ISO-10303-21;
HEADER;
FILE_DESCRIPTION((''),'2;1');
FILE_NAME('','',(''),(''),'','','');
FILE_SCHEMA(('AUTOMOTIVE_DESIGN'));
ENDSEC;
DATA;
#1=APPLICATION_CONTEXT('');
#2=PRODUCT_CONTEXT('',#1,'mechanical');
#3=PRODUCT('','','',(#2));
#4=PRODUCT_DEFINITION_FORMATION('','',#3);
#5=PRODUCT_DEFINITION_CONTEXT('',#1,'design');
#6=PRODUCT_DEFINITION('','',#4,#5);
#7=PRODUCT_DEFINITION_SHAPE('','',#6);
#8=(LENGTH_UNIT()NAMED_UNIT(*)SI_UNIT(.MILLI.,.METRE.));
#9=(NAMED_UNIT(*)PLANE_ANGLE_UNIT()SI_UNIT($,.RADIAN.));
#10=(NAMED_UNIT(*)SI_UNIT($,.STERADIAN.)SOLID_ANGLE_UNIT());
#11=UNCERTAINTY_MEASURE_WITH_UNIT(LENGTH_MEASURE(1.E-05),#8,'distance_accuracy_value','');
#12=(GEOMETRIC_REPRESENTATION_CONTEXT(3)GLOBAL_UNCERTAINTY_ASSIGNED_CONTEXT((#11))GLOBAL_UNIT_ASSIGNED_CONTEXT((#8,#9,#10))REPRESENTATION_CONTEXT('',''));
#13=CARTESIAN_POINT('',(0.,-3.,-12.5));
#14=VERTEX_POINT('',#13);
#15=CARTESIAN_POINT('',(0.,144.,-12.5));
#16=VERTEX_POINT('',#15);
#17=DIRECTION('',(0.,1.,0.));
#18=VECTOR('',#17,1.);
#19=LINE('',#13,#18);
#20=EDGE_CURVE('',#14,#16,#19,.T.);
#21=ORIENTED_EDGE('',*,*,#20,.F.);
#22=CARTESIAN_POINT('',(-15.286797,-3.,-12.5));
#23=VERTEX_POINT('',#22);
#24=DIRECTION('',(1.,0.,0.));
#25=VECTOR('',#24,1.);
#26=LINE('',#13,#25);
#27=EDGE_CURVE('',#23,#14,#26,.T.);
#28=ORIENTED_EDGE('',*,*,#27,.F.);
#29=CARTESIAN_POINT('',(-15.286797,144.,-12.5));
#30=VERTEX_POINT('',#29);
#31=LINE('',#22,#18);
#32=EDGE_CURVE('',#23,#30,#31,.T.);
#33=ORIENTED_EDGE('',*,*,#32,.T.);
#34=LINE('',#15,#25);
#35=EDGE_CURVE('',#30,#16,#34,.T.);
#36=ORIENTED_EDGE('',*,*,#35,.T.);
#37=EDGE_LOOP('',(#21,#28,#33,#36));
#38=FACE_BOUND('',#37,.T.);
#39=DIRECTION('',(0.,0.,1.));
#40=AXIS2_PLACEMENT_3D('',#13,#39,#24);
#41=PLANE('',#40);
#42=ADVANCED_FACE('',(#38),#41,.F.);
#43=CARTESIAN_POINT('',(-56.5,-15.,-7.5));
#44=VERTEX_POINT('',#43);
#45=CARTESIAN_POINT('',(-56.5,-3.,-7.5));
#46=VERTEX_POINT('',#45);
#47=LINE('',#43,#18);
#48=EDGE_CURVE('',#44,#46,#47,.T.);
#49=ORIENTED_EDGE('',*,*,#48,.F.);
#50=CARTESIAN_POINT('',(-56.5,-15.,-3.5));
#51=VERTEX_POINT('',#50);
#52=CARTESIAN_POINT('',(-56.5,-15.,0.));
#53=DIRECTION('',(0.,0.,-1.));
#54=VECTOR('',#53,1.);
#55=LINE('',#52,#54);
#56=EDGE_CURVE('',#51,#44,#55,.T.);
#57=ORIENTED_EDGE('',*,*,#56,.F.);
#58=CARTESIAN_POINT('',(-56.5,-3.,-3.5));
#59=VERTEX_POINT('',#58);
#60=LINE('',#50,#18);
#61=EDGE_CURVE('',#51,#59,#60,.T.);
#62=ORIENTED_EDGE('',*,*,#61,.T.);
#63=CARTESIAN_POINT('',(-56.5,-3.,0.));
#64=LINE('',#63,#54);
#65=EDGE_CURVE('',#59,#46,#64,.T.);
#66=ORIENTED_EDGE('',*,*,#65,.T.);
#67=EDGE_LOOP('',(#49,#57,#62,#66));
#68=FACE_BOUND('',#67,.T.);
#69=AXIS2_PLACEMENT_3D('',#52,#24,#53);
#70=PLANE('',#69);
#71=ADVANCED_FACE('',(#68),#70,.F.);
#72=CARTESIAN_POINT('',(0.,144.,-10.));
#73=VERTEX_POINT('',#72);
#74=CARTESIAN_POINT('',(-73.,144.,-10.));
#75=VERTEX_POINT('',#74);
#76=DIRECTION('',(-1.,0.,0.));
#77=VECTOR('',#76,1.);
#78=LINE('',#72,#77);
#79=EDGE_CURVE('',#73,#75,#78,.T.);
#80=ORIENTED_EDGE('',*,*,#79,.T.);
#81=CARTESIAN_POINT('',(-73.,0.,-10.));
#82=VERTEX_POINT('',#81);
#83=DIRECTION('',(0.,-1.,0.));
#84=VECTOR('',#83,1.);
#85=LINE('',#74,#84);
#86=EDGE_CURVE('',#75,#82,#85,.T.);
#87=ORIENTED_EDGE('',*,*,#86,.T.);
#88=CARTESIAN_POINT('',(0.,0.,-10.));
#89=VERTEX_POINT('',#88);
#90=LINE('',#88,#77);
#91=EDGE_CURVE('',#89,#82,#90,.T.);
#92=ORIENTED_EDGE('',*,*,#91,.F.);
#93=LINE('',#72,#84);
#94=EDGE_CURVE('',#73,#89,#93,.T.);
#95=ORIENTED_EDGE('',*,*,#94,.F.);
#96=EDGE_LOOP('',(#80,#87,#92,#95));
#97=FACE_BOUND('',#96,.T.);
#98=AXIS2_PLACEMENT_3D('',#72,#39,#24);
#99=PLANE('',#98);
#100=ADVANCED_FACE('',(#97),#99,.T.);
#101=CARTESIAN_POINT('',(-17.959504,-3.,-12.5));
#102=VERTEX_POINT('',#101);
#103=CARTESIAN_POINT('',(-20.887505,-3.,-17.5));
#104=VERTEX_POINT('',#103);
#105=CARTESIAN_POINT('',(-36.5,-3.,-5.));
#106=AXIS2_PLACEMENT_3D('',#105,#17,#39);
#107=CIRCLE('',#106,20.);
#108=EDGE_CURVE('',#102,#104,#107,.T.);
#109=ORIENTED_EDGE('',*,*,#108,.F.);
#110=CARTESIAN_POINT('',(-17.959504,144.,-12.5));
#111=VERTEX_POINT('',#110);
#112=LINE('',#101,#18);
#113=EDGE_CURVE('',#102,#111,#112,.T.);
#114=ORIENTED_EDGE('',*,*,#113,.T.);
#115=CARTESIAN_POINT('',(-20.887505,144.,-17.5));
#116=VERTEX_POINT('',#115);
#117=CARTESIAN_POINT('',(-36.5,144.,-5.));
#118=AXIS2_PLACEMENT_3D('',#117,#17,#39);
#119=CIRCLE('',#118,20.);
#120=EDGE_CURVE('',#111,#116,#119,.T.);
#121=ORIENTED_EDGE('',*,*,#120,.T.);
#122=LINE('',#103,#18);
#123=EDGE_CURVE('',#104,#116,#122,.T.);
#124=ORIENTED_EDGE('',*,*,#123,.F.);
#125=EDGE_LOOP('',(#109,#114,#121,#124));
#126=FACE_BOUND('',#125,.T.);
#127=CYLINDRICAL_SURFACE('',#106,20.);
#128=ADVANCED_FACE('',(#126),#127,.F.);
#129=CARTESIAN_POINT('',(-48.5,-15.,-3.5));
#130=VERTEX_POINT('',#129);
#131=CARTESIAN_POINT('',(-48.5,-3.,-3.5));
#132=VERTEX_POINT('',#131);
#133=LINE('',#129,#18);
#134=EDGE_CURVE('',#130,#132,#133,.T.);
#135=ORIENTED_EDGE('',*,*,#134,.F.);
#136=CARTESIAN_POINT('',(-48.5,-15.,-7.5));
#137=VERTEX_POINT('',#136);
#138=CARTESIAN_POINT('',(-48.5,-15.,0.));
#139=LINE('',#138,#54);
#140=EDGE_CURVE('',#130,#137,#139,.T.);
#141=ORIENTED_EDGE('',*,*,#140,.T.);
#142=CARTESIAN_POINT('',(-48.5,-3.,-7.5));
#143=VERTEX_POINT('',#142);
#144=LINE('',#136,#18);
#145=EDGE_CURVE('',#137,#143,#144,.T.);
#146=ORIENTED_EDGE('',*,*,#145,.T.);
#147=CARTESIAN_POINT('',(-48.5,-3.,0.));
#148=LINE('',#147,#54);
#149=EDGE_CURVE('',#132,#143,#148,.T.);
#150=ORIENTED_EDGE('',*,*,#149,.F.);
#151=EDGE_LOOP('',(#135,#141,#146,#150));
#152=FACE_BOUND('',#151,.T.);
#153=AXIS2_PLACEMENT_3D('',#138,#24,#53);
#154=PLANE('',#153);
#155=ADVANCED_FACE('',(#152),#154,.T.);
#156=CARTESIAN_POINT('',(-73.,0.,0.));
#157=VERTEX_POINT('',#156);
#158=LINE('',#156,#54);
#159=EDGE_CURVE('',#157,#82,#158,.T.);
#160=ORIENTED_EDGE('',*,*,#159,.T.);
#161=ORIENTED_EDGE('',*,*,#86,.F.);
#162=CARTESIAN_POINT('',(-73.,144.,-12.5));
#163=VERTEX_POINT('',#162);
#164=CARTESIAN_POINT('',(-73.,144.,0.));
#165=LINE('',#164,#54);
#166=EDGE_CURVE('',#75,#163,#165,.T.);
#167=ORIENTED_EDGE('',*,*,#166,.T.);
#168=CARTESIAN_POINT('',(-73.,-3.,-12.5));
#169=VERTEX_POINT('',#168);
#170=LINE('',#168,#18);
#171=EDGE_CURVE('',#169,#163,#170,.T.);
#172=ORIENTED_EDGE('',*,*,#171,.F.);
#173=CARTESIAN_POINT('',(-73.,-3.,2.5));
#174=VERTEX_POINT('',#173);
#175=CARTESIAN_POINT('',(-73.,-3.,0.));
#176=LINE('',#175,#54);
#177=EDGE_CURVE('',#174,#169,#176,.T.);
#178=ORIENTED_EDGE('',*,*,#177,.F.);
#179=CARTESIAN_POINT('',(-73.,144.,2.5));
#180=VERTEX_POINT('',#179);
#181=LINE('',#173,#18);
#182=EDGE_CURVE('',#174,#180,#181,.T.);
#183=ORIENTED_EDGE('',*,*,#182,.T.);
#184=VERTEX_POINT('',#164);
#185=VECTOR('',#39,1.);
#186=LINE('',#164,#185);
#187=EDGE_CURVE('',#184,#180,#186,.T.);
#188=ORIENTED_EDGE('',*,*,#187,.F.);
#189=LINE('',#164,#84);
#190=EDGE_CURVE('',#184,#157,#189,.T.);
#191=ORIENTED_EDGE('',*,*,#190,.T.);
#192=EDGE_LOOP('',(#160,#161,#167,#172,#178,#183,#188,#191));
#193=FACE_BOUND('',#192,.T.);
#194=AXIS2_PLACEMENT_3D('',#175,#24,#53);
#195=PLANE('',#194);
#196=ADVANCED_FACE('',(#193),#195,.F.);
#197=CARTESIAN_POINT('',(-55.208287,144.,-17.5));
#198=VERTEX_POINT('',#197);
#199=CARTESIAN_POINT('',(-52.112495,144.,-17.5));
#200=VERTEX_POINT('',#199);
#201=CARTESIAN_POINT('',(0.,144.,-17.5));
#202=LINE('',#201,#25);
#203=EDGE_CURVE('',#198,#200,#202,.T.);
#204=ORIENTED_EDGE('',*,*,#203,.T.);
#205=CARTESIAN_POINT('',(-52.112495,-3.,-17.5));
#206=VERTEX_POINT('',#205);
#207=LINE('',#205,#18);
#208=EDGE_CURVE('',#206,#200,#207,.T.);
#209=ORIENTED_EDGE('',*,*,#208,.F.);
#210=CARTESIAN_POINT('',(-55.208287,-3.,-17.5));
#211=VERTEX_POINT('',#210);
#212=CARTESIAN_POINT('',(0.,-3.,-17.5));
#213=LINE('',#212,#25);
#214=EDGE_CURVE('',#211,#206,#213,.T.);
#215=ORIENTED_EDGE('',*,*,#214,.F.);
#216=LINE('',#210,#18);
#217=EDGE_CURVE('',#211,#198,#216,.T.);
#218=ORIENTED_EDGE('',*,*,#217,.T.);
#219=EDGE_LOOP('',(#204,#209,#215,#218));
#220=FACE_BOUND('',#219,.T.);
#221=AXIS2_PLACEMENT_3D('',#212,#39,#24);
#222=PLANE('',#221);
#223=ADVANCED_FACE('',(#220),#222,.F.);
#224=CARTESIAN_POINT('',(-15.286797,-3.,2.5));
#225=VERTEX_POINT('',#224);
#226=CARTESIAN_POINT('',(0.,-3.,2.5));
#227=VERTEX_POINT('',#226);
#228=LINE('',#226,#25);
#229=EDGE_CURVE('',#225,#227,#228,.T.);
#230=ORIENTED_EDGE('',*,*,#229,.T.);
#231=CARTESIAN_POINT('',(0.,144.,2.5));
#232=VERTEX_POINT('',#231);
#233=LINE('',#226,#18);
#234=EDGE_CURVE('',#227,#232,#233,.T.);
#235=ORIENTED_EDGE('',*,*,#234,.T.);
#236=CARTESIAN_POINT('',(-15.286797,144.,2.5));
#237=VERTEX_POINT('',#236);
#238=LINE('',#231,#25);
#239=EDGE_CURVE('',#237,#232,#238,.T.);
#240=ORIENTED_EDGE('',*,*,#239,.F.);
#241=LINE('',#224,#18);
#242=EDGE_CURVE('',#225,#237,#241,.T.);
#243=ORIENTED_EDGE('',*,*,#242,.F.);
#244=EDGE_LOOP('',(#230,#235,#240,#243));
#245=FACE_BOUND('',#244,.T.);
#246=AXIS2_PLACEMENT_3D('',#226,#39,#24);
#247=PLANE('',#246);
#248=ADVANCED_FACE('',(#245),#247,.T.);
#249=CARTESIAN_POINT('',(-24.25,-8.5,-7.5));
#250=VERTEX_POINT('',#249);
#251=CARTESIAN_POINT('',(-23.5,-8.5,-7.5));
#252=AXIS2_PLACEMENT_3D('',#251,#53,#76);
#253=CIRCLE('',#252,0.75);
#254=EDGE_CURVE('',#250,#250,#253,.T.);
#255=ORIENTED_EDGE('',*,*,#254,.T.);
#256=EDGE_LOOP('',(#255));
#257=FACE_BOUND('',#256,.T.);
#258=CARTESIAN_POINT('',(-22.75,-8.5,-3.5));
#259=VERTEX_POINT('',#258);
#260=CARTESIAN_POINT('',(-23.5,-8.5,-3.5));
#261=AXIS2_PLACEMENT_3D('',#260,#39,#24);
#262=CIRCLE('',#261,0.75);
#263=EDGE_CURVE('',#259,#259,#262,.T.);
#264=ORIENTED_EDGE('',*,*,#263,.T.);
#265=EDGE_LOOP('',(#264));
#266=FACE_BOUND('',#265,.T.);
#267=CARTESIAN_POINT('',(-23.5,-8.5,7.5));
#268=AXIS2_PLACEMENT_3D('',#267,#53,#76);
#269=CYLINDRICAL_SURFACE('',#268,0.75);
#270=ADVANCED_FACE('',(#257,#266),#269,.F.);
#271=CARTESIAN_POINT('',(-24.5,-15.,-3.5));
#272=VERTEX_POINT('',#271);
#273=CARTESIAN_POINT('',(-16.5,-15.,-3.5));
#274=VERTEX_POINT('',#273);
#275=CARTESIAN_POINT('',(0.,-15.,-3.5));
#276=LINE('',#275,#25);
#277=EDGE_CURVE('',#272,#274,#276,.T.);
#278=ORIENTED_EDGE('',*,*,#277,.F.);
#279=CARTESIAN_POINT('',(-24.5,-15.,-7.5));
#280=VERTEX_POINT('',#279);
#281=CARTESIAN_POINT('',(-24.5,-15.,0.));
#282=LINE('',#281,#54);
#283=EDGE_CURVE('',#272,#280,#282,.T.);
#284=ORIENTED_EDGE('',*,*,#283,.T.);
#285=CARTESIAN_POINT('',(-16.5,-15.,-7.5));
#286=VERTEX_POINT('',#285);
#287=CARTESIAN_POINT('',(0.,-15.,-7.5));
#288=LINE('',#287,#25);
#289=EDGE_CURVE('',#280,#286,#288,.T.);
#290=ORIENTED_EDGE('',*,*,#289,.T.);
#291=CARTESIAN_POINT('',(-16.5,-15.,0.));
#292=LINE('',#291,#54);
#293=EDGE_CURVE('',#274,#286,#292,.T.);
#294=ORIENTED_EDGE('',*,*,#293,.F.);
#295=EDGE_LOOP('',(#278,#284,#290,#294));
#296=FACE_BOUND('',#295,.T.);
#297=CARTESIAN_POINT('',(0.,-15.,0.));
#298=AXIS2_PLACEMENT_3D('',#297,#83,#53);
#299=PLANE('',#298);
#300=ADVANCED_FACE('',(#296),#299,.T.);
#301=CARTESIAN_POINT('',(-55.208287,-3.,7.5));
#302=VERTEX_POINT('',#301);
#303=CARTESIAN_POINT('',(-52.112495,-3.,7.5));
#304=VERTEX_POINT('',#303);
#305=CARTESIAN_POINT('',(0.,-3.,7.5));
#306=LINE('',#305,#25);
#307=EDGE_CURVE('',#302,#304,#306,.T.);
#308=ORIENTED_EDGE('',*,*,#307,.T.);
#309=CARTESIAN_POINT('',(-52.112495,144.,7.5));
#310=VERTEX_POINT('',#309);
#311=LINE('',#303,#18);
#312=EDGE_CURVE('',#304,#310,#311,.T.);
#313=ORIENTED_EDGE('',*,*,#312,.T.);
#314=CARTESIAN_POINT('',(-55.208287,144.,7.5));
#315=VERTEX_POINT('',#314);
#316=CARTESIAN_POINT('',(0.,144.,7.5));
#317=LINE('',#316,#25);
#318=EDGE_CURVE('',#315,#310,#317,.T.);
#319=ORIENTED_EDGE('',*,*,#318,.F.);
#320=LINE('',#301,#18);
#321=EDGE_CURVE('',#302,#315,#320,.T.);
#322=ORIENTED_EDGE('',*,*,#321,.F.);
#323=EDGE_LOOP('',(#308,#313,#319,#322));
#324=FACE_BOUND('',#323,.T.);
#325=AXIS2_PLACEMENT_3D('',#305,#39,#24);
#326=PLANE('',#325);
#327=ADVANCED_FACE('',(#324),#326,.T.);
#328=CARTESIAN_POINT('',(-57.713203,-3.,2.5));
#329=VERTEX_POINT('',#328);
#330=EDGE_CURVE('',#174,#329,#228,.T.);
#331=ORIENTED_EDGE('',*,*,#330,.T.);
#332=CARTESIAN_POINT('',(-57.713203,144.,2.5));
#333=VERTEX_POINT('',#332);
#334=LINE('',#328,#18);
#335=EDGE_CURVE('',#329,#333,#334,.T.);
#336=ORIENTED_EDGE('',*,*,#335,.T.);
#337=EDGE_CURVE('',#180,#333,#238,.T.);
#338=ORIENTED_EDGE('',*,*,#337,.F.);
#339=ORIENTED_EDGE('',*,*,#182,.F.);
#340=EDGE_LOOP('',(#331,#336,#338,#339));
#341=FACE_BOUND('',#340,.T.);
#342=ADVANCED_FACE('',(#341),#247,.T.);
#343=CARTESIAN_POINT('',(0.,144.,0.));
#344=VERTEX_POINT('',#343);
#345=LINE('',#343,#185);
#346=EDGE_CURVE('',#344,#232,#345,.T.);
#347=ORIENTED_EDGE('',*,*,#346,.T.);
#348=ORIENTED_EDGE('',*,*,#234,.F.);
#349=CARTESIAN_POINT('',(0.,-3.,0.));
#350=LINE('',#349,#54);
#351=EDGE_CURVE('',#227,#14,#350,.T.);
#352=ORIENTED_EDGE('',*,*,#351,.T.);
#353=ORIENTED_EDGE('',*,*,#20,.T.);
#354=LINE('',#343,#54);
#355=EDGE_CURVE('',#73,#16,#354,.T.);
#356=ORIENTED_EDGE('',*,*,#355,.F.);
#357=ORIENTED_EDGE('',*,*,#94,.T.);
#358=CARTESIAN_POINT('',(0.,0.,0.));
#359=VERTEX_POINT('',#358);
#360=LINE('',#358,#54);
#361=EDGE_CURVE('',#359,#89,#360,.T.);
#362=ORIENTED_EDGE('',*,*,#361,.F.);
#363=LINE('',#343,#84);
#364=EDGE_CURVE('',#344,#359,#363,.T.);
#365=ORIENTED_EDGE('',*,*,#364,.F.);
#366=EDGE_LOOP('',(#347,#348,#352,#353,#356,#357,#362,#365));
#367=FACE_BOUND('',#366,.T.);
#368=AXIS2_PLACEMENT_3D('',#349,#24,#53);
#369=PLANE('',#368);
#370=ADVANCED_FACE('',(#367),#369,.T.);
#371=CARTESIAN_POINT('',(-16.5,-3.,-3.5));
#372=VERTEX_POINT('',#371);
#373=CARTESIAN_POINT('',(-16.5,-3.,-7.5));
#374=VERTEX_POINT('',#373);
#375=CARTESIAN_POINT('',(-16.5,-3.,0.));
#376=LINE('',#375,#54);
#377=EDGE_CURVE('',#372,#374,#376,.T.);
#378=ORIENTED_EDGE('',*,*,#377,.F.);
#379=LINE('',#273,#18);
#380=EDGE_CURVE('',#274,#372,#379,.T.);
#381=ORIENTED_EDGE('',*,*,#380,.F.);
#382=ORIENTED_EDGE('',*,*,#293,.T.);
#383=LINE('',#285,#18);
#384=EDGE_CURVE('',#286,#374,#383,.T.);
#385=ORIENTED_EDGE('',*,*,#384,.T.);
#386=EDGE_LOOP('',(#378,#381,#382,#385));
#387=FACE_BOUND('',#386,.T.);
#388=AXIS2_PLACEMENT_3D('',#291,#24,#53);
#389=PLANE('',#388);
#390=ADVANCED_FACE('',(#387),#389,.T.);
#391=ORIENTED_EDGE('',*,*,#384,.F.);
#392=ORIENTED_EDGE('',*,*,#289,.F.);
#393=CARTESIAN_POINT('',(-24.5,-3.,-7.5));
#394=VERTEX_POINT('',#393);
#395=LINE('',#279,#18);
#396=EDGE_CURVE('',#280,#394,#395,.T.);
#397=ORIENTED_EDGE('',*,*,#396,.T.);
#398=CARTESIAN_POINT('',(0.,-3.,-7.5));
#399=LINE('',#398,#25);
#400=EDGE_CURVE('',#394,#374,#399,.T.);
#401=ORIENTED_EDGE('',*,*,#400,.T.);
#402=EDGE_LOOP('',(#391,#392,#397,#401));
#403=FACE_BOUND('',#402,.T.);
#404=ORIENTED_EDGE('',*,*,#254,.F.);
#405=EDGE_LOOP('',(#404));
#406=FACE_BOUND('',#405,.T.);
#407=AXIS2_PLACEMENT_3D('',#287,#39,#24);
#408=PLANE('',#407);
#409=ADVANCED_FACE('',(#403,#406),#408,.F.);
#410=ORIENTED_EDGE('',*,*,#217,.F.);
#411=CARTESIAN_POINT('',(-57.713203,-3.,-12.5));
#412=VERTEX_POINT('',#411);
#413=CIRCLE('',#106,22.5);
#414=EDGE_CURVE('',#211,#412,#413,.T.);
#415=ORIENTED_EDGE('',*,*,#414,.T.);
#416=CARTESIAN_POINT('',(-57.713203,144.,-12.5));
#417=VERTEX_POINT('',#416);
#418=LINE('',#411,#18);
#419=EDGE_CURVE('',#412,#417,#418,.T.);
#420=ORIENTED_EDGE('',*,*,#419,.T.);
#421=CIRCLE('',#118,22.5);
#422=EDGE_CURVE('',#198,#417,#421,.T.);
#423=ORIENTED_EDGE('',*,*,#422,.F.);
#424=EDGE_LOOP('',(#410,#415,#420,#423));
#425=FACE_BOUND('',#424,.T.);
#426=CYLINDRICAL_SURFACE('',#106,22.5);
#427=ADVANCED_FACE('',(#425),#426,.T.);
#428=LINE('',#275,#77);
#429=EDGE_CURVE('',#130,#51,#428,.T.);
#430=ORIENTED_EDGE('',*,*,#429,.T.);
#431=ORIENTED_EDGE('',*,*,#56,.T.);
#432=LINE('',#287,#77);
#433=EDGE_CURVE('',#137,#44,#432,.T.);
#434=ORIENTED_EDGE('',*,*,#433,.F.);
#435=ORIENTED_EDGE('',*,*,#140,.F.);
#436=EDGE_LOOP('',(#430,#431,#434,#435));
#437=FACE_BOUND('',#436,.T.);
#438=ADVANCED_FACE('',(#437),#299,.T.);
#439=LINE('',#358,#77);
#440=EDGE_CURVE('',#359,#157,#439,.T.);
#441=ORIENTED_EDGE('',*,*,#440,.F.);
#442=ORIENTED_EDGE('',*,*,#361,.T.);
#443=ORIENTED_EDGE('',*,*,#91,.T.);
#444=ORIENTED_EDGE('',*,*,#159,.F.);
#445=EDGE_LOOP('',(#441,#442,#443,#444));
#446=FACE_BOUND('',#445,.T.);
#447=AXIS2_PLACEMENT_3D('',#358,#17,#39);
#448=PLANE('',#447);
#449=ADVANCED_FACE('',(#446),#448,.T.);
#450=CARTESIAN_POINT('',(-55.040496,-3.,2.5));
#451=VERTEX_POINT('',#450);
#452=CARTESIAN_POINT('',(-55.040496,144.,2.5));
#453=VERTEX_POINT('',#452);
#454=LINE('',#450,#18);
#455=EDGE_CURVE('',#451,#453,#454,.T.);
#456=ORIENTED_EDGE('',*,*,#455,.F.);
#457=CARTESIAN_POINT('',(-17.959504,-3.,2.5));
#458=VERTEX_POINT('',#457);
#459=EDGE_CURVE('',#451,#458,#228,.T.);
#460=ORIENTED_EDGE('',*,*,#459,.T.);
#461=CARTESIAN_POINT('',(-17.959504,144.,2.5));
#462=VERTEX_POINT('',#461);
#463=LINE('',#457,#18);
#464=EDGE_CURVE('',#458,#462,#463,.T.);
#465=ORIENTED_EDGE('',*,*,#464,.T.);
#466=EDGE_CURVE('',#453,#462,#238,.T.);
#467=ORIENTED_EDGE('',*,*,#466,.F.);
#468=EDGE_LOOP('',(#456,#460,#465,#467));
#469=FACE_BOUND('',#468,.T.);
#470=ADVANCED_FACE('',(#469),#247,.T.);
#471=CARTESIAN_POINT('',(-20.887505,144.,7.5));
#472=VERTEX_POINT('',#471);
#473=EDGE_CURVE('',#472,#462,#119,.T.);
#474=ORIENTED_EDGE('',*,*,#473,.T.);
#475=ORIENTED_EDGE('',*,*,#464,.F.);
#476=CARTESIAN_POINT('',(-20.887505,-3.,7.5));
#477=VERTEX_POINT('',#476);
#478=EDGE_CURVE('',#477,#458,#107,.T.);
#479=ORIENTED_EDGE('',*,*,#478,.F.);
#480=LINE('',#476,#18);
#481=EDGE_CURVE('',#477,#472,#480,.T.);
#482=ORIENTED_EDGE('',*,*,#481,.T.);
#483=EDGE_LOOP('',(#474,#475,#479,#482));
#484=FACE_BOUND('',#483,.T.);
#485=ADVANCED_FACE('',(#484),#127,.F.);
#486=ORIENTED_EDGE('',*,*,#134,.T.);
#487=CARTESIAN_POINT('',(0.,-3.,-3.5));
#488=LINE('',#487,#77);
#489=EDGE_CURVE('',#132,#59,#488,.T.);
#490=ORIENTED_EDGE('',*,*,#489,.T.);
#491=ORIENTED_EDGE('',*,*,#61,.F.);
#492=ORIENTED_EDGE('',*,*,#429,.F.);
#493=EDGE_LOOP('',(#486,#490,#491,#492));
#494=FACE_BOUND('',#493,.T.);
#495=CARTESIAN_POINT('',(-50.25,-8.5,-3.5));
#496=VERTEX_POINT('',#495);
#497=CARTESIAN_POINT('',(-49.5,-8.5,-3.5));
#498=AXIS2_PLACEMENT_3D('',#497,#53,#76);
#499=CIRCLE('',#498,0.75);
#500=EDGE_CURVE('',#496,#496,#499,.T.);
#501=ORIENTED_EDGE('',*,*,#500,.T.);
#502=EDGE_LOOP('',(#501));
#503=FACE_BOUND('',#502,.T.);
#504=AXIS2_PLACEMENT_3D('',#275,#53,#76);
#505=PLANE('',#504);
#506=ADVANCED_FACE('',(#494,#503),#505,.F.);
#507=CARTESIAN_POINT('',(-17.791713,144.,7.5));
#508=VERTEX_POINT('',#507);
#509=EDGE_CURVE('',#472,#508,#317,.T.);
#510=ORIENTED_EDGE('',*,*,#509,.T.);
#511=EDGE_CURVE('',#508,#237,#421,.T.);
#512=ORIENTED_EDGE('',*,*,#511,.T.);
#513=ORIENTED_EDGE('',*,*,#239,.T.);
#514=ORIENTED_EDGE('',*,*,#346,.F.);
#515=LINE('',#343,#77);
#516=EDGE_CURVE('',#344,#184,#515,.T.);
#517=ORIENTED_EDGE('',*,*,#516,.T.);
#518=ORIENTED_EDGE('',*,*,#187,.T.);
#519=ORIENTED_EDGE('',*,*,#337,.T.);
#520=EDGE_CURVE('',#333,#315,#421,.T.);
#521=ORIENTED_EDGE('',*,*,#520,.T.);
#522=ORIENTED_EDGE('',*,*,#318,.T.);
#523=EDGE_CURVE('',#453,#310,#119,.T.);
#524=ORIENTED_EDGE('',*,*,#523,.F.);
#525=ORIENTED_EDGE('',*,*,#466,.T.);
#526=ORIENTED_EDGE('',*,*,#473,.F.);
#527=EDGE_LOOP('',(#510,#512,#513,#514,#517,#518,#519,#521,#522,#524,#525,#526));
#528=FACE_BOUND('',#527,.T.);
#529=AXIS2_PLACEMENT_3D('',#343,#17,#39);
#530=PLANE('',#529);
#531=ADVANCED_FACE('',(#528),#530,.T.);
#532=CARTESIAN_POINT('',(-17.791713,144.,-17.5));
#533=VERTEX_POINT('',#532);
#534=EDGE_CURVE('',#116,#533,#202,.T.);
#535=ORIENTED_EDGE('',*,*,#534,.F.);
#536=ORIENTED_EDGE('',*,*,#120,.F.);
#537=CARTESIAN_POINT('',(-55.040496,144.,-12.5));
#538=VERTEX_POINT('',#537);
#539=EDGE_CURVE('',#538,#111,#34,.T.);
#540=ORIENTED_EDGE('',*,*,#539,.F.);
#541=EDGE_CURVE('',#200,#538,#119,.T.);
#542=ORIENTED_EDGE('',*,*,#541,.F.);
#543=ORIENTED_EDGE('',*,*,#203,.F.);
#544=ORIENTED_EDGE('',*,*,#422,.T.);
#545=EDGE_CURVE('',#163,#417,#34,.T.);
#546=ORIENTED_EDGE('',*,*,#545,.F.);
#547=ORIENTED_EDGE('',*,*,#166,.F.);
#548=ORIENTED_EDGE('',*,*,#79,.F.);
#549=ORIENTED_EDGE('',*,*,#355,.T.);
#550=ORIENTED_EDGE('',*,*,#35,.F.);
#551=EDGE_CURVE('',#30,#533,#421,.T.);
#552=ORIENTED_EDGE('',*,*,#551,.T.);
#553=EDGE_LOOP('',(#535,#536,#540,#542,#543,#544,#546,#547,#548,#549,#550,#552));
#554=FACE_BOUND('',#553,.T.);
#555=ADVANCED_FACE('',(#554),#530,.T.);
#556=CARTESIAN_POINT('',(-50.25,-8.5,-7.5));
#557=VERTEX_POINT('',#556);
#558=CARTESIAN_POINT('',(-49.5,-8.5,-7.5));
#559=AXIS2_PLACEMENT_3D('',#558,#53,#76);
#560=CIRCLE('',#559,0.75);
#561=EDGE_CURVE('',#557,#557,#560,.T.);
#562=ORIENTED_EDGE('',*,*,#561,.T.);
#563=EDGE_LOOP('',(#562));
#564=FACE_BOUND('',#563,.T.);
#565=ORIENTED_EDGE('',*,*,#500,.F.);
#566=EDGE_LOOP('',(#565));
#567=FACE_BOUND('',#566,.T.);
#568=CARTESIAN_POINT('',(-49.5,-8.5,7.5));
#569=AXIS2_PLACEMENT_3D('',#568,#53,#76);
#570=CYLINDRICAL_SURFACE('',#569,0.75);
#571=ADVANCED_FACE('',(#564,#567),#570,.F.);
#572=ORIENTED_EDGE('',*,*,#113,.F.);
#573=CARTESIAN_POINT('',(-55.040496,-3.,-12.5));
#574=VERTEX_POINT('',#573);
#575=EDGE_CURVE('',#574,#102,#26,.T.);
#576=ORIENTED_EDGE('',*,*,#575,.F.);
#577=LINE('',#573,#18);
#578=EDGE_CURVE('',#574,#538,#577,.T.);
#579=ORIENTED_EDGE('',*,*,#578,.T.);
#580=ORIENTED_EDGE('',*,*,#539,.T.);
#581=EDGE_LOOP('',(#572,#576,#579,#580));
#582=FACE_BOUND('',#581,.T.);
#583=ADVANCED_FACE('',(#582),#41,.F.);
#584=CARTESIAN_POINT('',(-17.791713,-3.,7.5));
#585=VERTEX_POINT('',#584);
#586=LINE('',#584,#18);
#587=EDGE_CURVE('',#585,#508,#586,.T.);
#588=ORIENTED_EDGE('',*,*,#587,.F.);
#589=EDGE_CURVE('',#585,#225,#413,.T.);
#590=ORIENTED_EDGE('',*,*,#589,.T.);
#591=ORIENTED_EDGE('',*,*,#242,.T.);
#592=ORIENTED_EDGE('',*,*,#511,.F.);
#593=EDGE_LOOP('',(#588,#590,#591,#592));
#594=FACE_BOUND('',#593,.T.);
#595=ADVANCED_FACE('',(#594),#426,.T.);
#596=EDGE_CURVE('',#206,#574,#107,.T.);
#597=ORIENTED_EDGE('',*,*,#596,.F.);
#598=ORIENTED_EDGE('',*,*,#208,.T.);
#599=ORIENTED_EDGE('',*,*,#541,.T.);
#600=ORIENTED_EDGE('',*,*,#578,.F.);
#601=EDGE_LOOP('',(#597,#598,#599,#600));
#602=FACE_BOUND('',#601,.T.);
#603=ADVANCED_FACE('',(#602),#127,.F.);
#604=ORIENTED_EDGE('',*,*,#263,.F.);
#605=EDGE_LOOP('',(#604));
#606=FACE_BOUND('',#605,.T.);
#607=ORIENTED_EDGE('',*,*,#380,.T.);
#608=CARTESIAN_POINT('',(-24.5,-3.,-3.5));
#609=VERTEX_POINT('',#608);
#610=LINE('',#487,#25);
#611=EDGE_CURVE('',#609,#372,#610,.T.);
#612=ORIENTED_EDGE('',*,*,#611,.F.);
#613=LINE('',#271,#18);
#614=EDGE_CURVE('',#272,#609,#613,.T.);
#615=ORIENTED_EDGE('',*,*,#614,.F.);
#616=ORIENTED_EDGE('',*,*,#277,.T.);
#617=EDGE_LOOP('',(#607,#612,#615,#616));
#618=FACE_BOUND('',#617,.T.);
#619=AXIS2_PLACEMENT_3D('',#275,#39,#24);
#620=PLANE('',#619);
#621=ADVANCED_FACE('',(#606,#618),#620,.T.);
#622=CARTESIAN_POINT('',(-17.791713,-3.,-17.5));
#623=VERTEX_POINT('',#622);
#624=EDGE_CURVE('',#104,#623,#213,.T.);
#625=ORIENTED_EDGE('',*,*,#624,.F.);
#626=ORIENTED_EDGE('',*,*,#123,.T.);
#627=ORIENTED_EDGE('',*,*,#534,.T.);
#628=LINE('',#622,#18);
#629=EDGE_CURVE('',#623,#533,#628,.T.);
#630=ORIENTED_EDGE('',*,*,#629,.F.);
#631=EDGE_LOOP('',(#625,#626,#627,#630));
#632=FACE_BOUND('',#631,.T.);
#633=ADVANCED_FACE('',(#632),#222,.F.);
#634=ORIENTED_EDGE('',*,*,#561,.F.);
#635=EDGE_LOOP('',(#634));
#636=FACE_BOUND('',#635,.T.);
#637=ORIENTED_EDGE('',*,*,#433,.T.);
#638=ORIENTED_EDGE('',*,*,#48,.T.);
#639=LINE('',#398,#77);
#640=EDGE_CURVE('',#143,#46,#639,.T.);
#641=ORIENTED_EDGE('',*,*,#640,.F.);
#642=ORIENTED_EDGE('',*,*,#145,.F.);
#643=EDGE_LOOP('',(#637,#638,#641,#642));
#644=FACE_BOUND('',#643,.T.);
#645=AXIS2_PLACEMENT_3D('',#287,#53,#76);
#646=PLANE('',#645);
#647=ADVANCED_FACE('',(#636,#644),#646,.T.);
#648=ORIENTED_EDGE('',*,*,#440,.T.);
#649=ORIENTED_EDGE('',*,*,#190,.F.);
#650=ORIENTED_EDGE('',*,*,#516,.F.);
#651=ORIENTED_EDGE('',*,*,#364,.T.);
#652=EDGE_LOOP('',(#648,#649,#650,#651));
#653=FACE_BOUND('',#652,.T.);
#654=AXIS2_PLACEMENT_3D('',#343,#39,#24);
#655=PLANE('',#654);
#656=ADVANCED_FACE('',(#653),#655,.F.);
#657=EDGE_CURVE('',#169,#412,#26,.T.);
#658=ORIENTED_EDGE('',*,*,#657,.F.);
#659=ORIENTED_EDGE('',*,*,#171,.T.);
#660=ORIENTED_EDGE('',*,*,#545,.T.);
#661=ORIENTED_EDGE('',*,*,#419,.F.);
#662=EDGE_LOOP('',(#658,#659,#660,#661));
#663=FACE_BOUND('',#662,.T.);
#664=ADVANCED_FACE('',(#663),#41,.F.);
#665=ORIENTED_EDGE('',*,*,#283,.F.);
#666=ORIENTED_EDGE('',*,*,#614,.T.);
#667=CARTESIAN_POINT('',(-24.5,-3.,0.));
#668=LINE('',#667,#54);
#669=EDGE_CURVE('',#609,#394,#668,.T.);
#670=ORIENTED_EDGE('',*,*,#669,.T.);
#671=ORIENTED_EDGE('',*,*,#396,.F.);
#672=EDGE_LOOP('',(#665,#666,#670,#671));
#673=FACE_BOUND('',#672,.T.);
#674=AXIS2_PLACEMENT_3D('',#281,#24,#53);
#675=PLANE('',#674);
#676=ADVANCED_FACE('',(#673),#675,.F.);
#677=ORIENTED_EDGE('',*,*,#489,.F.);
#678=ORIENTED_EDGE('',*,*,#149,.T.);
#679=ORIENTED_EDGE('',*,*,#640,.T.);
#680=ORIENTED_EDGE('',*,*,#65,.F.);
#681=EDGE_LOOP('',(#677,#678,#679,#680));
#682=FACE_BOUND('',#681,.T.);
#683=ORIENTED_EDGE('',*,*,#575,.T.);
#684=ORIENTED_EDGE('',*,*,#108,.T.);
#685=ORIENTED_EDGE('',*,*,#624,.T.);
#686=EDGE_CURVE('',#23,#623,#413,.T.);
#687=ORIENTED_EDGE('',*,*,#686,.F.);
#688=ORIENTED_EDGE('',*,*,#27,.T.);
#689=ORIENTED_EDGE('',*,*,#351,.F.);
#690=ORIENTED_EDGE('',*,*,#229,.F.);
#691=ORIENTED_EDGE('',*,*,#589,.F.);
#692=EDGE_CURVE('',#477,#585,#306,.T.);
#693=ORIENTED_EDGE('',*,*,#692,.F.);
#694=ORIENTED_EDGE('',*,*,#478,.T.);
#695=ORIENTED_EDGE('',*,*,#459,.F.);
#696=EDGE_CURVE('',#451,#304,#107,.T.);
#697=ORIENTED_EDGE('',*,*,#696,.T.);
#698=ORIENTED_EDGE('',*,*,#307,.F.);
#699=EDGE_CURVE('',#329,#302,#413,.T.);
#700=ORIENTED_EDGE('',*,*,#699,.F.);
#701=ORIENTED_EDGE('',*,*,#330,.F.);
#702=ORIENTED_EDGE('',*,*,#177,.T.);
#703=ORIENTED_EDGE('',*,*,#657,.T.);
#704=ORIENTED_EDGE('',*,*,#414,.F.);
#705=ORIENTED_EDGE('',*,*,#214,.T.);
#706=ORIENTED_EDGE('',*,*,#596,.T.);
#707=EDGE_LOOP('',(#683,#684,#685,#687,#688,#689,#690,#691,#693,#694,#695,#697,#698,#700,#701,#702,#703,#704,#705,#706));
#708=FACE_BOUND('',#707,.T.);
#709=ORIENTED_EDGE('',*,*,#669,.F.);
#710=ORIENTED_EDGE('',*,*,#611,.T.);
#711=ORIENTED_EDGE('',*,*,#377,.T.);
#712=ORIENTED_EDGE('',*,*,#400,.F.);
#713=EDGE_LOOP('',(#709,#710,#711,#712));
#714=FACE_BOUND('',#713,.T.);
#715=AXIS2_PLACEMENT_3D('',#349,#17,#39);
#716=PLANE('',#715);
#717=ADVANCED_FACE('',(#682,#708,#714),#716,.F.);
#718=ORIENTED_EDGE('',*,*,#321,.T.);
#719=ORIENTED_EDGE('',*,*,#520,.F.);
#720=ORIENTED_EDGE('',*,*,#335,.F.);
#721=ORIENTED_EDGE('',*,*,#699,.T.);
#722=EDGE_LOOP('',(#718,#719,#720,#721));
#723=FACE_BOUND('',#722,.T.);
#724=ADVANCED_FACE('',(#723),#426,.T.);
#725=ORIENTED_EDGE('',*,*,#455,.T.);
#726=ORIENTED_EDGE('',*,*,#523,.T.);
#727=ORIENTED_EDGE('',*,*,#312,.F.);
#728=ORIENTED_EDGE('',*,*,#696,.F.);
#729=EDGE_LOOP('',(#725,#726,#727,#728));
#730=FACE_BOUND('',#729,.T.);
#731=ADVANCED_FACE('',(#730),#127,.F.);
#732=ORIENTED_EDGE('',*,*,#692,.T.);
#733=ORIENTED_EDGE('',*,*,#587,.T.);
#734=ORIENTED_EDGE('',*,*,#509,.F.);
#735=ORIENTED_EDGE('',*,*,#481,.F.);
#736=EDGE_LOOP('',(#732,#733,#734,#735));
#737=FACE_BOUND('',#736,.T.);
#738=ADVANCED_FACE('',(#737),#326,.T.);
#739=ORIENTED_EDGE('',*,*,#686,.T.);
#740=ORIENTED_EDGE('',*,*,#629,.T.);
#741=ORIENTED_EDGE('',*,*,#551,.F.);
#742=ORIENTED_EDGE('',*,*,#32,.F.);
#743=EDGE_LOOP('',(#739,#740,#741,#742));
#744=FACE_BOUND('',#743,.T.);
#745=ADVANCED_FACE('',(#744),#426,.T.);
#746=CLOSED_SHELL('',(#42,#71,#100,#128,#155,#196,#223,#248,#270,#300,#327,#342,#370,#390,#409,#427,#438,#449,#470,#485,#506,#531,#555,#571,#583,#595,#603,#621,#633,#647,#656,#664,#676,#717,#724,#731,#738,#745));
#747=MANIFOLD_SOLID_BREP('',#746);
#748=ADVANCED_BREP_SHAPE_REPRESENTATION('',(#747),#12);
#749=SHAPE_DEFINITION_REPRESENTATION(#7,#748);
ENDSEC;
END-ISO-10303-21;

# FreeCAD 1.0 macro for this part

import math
import FreeCAD as App
import Part
import Sketcher

V = App.Vector


def add_polygon(sketch, points):
    """Adds a closed chain of lines whose ends are joined by coincident constraints."""
    first, n = sketch.GeometryCount, len(points)
    for a, b in zip(points, points[1:] + points[:1]):
        sketch.addGeometry(Part.LineSegment(App.Vector(*a, 0), App.Vector(*b, 0)), False)
    for i in range(n):
        sketch.addConstraint(Sketcher.Constraint("Coincident", first + i, 2, first + (i + 1) % n, 1))

doc = App.newDocument("Part")
body = doc.addObject("PartDesign::Body", "Body")

# Sketch on XZ plane
sketch1 = body.newObject("Sketcher::SketchObject", "Sketch")
sketch1.AttachmentSupport = (doc.getObject("XZ_Plane"), [""])
sketch1.MapMode = "FlatFace"
sketch1.addGeometry(Part.ArcOfCircle(Part.Circle(V(-36.5, -5, 0), V(0, 0, 1), 22.5), math.radians(19.47), math.radians(33.75)), False)
sketch1.addGeometry(Part.LineSegment(V(-15.3, 2.5, 0), V(0, 2.5, 0)), False)
sketch1.addGeometry(Part.LineSegment(V(0, 2.5, 0), V(0, -12.5, 0)), False)
sketch1.addGeometry(Part.LineSegment(V(0, -12.5, 0), V(-15.3, -12.5, 0)), False)
sketch1.addGeometry(Part.ArcOfCircle(Part.Circle(V(-36.5, -5, 0), V(0, 0, 1), 22.5), math.radians(-33.75), math.radians(-19.47)), False)
sketch1.addGeometry(Part.LineSegment(V(-17.8, -17.5, 0), V(-20.9, -17.5, 0)), False)
sketch1.addGeometry(Part.ArcOfCircle(Part.Circle(V(-36.5, -5, 0), V(0, 0, 1), 20), math.radians(-38.68), math.radians(-22.02)), False)
sketch1.addGeometry(Part.LineSegment(V(-18, -12.5, 0), V(-55, -12.5, 0)), False)
sketch1.addGeometry(Part.ArcOfCircle(Part.Circle(V(-36.5, -5, 0), V(0, 0, 1), 20), math.radians(-157.98), math.radians(-141.32)), False)
sketch1.addGeometry(Part.LineSegment(V(-52.1, -17.5, 0), V(-55.2, -17.5, 0)), False)
sketch1.addGeometry(Part.ArcOfCircle(Part.Circle(V(-36.5, -5, 0), V(0, 0, 1), 22.5), math.radians(-160.53), math.radians(-146.25)), False)
sketch1.addGeometry(Part.LineSegment(V(-57.7, -12.5, 0), V(-73, -12.5, 0)), False)
sketch1.addGeometry(Part.LineSegment(V(-73, -12.5, 0), V(-73, 2.5, 0)), False)
sketch1.addGeometry(Part.LineSegment(V(-73, 2.5, 0), V(-57.7, 2.5, 0)), False)
sketch1.addGeometry(Part.ArcOfCircle(Part.Circle(V(-36.5, -5, 0), V(0, 0, 1), 22.5), math.radians(146.25), math.radians(160.53)), False)
sketch1.addGeometry(Part.LineSegment(V(-55.2, 7.5, 0), V(-52.1, 7.5, 0)), False)
sketch1.addGeometry(Part.ArcOfCircle(Part.Circle(V(-36.5, -5, 0), V(0, 0, 1), 20), math.radians(141.32), math.radians(157.98)), False)
sketch1.addGeometry(Part.LineSegment(V(-55, 2.5, 0), V(-18, 2.5, 0)), False)
sketch1.addGeometry(Part.ArcOfCircle(Part.Circle(V(-36.5, -5, 0), V(0, 0, 1), 20), math.radians(22.02), math.radians(38.68)), False)
sketch1.addGeometry(Part.LineSegment(V(-20.9, 7.5, 0), V(-17.8, 7.5, 0)), False)
sketch1.addConstraint(Sketcher.Constraint("Coincident", 0, 1, 1, 1))
sketch1.addConstraint(Sketcher.Constraint("Coincident", 1, 2, 2, 1))
sketch1.addConstraint(Sketcher.Constraint("Coincident", 2, 2, 3, 1))
sketch1.addConstraint(Sketcher.Constraint("Coincident", 3, 2, 4, 2))
sketch1.addConstraint(Sketcher.Constraint("Coincident", 4, 1, 5, 1))
sketch1.addConstraint(Sketcher.Constraint("Coincident", 5, 2, 6, 1))
sketch1.addConstraint(Sketcher.Constraint("Coincident", 6, 2, 7, 1))
sketch1.addConstraint(Sketcher.Constraint("Coincident", 7, 2, 8, 1))
sketch1.addConstraint(Sketcher.Constraint("Coincident", 8, 2, 9, 1))
sketch1.addConstraint(Sketcher.Constraint("Coincident", 9, 2, 10, 2))
sketch1.addConstraint(Sketcher.Constraint("Coincident", 10, 1, 11, 1))
sketch1.addConstraint(Sketcher.Constraint("Coincident", 11, 2, 12, 1))
sketch1.addConstraint(Sketcher.Constraint("Coincident", 12, 2, 13, 1))
sketch1.addConstraint(Sketcher.Constraint("Coincident", 13, 2, 14, 2))
sketch1.addConstraint(Sketcher.Constraint("Coincident", 14, 1, 15, 1))
sketch1.addConstraint(Sketcher.Constraint("Coincident", 15, 2, 16, 1))
sketch1.addConstraint(Sketcher.Constraint("Coincident", 16, 2, 17, 1))
sketch1.addConstraint(Sketcher.Constraint("Coincident", 17, 2, 18, 1))
sketch1.addConstraint(Sketcher.Constraint("Coincident", 18, 2, 19, 1))
sketch1.addConstraint(Sketcher.Constraint("Coincident", 19, 2, 0, 2))
sketch1.addConstraint(Sketcher.Constraint("Horizontal", 1))
sketch1.addConstraint(Sketcher.Constraint("Vertical", 2))
sketch1.addConstraint(Sketcher.Constraint("Horizontal", 3))
sketch1.addConstraint(Sketcher.Constraint("Horizontal", 5))
sketch1.addConstraint(Sketcher.Constraint("Horizontal", 7))
sketch1.addConstraint(Sketcher.Constraint("Horizontal", 9))
sketch1.addConstraint(Sketcher.Constraint("Horizontal", 11))
sketch1.addConstraint(Sketcher.Constraint("Vertical", 12))
sketch1.addConstraint(Sketcher.Constraint("Horizontal", 13))
sketch1.addConstraint(Sketcher.Constraint("Horizontal", 15))
sketch1.addConstraint(Sketcher.Constraint("Horizontal", 17))
sketch1.addConstraint(Sketcher.Constraint("Horizontal", 19))
sketch1.addConstraint(Sketcher.Constraint("Coincident", 4, 3, 0, 3))
sketch1.addConstraint(Sketcher.Constraint("Coincident", 6, 3, 0, 3))
sketch1.addConstraint(Sketcher.Constraint("Coincident", 8, 3, 0, 3))
sketch1.addConstraint(Sketcher.Constraint("Coincident", 10, 3, 0, 3))
sketch1.addConstraint(Sketcher.Constraint("Coincident", 14, 3, 0, 3))
sketch1.addConstraint(Sketcher.Constraint("Coincident", 16, 3, 0, 3))
sketch1.addConstraint(Sketcher.Constraint("Coincident", 18, 3, 0, 3))
sketch1.addConstraint(Sketcher.Constraint("Equal", 0, 4))
sketch1.addConstraint(Sketcher.Constraint("Equal", 6, 8))
sketch1.addConstraint(Sketcher.Constraint("Equal", 4, 10))
sketch1.addConstraint(Sketcher.Constraint("Equal", 10, 14))
sketch1.addConstraint(Sketcher.Constraint("Equal", 8, 16))
sketch1.addConstraint(Sketcher.Constraint("Equal", 16, 18))
sketch1.addConstraint(Sketcher.Constraint("PointOnObject", 1, 2, -2))
sketch1.addConstraint(Sketcher.Constraint("Horizontal", 3, 2, 6, 2))
sketch1.addConstraint(Sketcher.Constraint("Horizontal", 5, 2, 8, 2))
sketch1.addConstraint(Sketcher.Constraint("Horizontal", 7, 2, 10, 1))
sketch1.addConstraint(Sketcher.Constraint("Horizontal", 1, 2, 12, 2))
sketch1.addConstraint(Sketcher.Constraint("Horizontal", 13, 2, 16, 2))
sketch1.addConstraint(Sketcher.Constraint("Horizontal", 15, 2, 18, 2))
sketch1.addConstraint(Sketcher.Constraint("Vertical", 0, 1, 3, 2))
sketch1.addConstraint(Sketcher.Constraint("Vertical", 9, 2, 14, 1))
sketch1.addConstraint(Sketcher.Constraint("Equal", 3, 11))
sketch1.addConstraint(Sketcher.Constraint("Radius", 6, 20.0))
sketch1.addConstraint(Sketcher.Constraint("Radius", 0, 22.5))
sketch1.addConstraint(Sketcher.Constraint("DistanceY", 2, 2, 2, 1, 15.0))
sketch1.addConstraint(Sketcher.Constraint("DistanceY", 0, 3, -1, 1, 5.0))
sketch1.addConstraint(Sketcher.Constraint("DistanceX", 11, 2, -1, 1, 73.0))
sketch1.addConstraint(Sketcher.Constraint("DistanceY", 4, 1, 3, 2, 5.0))
pad1 = body.newObject("PartDesign::Pad", "Pad")
pad1.Profile = sketch1
pad1.Length = 3

# Sketch on XZ plane
sketch2 = body.newObject("Sketcher::SketchObject", "Sketch001")
sketch2.AttachmentSupport = (doc.getObject("XZ_Plane"), [""])
sketch2.MapMode = "FlatFace"
sketch2.addGeometry(Part.LineSegment(V(-18, -12.5, 0), V(-55, -12.5, 0)), False)
sketch2.addGeometry(Part.ArcOfCircle(Part.Circle(V(-36.5, -5, 0), V(0, 0, 1), 20), math.radians(-157.98), math.radians(-141.32)), False)
sketch2.addGeometry(Part.LineSegment(V(-52.1, -17.5, 0), V(-55.2, -17.5, 0)), False)
sketch2.addGeometry(Part.ArcOfCircle(Part.Circle(V(-36.5, -5, 0), V(0, 0, 1), 22.5), math.radians(-160.53), math.radians(-146.25)), False)
sketch2.addGeometry(Part.LineSegment(V(-57.7, -12.5, 0), V(-73, -12.5, 0)), False)
sketch2.addGeometry(Part.LineSegment(V(-73, -12.5, 0), V(-73, -10, 0)), False)
sketch2.addGeometry(Part.LineSegment(V(-73, -10, 0), V(0, -10, 0)), False)
sketch2.addGeometry(Part.LineSegment(V(0, -10, 0), V(0, -12.5, 0)), False)
sketch2.addGeometry(Part.LineSegment(V(0, -12.5, 0), V(-15.3, -12.5, 0)), False)
sketch2.addGeometry(Part.ArcOfCircle(Part.Circle(V(-36.5, -5, 0), V(0, 0, 1), 22.5), math.radians(-33.75), math.radians(-19.47)), False)
sketch2.addGeometry(Part.LineSegment(V(-17.8, -17.5, 0), V(-20.9, -17.5, 0)), False)
sketch2.addGeometry(Part.ArcOfCircle(Part.Circle(V(-36.5, -5, 0), V(0, 0, 1), 20), math.radians(-38.68), math.radians(-22.02)), False)
sketch2.addGeometry(Part.LineSegment(V(0, 2.5, 0), V(0, 0, 0)), False)
sketch2.addGeometry(Part.LineSegment(V(0, 0, 0), V(-73, 0, 0)), False)
sketch2.addGeometry(Part.LineSegment(V(-73, 0, 0), V(-73, 2.5, 0)), False)
sketch2.addGeometry(Part.LineSegment(V(-73, 2.5, 0), V(-57.7, 2.5, 0)), False)
sketch2.addGeometry(Part.ArcOfCircle(Part.Circle(V(-36.5, -5, 0), V(0, 0, 1), 22.5), math.radians(146.25), math.radians(160.53)), False)
sketch2.addGeometry(Part.LineSegment(V(-55.2, 7.5, 0), V(-52.1, 7.5, 0)), False)
sketch2.addGeometry(Part.ArcOfCircle(Part.Circle(V(-36.5, -5, 0), V(0, 0, 1), 20), math.radians(141.32), math.radians(157.98)), False)
sketch2.addGeometry(Part.LineSegment(V(-55, 2.5, 0), V(-18, 2.5, 0)), False)
sketch2.addGeometry(Part.ArcOfCircle(Part.Circle(V(-36.5, -5, 0), V(0, 0, 1), 20), math.radians(22.02), math.radians(38.68)), False)
sketch2.addGeometry(Part.LineSegment(V(-20.9, 7.5, 0), V(-17.8, 7.5, 0)), False)
sketch2.addGeometry(Part.ArcOfCircle(Part.Circle(V(-36.5, -5, 0), V(0, 0, 1), 22.5), math.radians(19.47), math.radians(33.75)), False)
sketch2.addGeometry(Part.LineSegment(V(-15.3, 2.5, 0), V(0, 2.5, 0)), False)
sketch2.addConstraint(Sketcher.Constraint("Coincident", 0, 2, 1, 1))
sketch2.addConstraint(Sketcher.Constraint("Coincident", 1, 2, 2, 1))
sketch2.addConstraint(Sketcher.Constraint("Coincident", 2, 2, 3, 2))
sketch2.addConstraint(Sketcher.Constraint("Coincident", 3, 1, 4, 1))
sketch2.addConstraint(Sketcher.Constraint("Coincident", 4, 2, 5, 1))
sketch2.addConstraint(Sketcher.Constraint("Coincident", 5, 2, 6, 1))
sketch2.addConstraint(Sketcher.Constraint("Coincident", 6, 2, 7, 1))
sketch2.addConstraint(Sketcher.Constraint("Coincident", 7, 2, 8, 1))
sketch2.addConstraint(Sketcher.Constraint("Coincident", 8, 2, 9, 2))
sketch2.addConstraint(Sketcher.Constraint("Coincident", 9, 1, 10, 1))
sketch2.addConstraint(Sketcher.Constraint("Coincident", 10, 2, 11, 1))
sketch2.addConstraint(Sketcher.Constraint("Coincident", 11, 2, 0, 1))
sketch2.addConstraint(Sketcher.Constraint("Coincident", 12, 2, 13, 1))
sketch2.addConstraint(Sketcher.Constraint("Coincident", 13, 2, 14, 1))
sketch2.addConstraint(Sketcher.Constraint("Coincident", 14, 2, 15, 1))
sketch2.addConstraint(Sketcher.Constraint("Coincident", 15, 2, 16, 2))
sketch2.addConstraint(Sketcher.Constraint("Coincident", 16, 1, 17, 1))
sketch2.addConstraint(Sketcher.Constraint("Coincident", 17, 2, 18, 1))
sketch2.addConstraint(Sketcher.Constraint("Coincident", 18, 2, 19, 1))
sketch2.addConstraint(Sketcher.Constraint("Coincident", 19, 2, 20, 1))
sketch2.addConstraint(Sketcher.Constraint("Coincident", 20, 2, 21, 1))
sketch2.addConstraint(Sketcher.Constraint("Coincident", 21, 2, 22, 2))
sketch2.addConstraint(Sketcher.Constraint("Coincident", 22, 1, 23, 1))
sketch2.addConstraint(Sketcher.Constraint("Coincident", 23, 2, 12, 1))
sketch2.addConstraint(Sketcher.Constraint("Horizontal", 0))
sketch2.addConstraint(Sketcher.Constraint("Horizontal", 2))
sketch2.addConstraint(Sketcher.Constraint("Horizontal", 4))
sketch2.addConstraint(Sketcher.Constraint("Vertical", 5))
sketch2.addConstraint(Sketcher.Constraint("Horizontal", 6))
sketch2.addConstraint(Sketcher.Constraint("Vertical", 7))
sketch2.addConstraint(Sketcher.Constraint("Horizontal", 8))
sketch2.addConstraint(Sketcher.Constraint("Horizontal", 10))
sketch2.addConstraint(Sketcher.Constraint("Vertical", 12))
sketch2.addConstraint(Sketcher.Constraint("Horizontal", 13))
sketch2.addConstraint(Sketcher.Constraint("Vertical", 14))
sketch2.addConstraint(Sketcher.Constraint("Horizontal", 15))
sketch2.addConstraint(Sketcher.Constraint("Horizontal", 17))
sketch2.addConstraint(Sketcher.Constraint("Horizontal", 19))
sketch2.addConstraint(Sketcher.Constraint("Horizontal", 21))
sketch2.addConstraint(Sketcher.Constraint("Horizontal", 23))
sketch2.addConstraint(Sketcher.Constraint("Coincident", 12, 2, -1, 1))
sketch2.addConstraint(Sketcher.Constraint("Coincident", 3, 3, 1, 3))
sketch2.addConstraint(Sketcher.Constraint("Coincident", 9, 3, 1, 3))
sketch2.addConstraint(Sketcher.Constraint("Coincident", 11, 3, 1, 3))
sketch2.addConstraint(Sketcher.Constraint("Coincident", 16, 3, 1, 3))
sketch2.addConstraint(Sketcher.Constraint("Coincident", 18, 3, 1, 3))
sketch2.addConstraint(Sketcher.Constraint("Coincident", 20, 3, 1, 3))
sketch2.addConstraint(Sketcher.Constraint("Coincident", 22, 3, 1, 3))
sketch2.addConstraint(Sketcher.Constraint("Equal", 3, 9))
sketch2.addConstraint(Sketcher.Constraint("Equal", 1, 11))
sketch2.addConstraint(Sketcher.Constraint("Equal", 9, 16))
sketch2.addConstraint(Sketcher.Constraint("Equal", 11, 18))
sketch2.addConstraint(Sketcher.Constraint("Equal", 18, 20))
sketch2.addConstraint(Sketcher.Constraint("Equal", 16, 22))
sketch2.addConstraint(Sketcher.Constraint("PointOnObject", 6, 2, -2))
sketch2.addConstraint(Sketcher.Constraint("Horizontal", 0, 2, 3, 1))
sketch2.addConstraint(Sketcher.Constraint("Horizontal", 4, 2, 7, 2))
sketch2.addConstraint(Sketcher.Constraint("Horizontal", 2, 2, 9, 1))
sketch2.addConstraint(Sketcher.Constraint("Horizontal", 15, 2, 18, 2))
sketch2.addConstraint(Sketcher.Constraint("Horizontal", 17, 2, 20, 2))
sketch2.addConstraint(Sketcher.Constraint("Horizontal", 19, 2, 22, 1))
sketch2.addConstraint(Sketcher.Constraint("Vertical", 5, 2, 13, 2))
sketch2.addConstraint(Sketcher.Constraint("Vertical", 3, 1, 15, 2))
sketch2.addConstraint(Sketcher.Constraint("Vertical", 2, 2, 16, 1))
sketch2.addConstraint(Sketcher.Constraint("Equal", 4, 8))
sketch2.addConstraint(Sketcher.Constraint("Equal", 7, 12))
sketch2.addConstraint(Sketcher.Constraint("Radius", 1, 20.0))
sketch2.addConstraint(Sketcher.Constraint("Radius", 3, 22.5))
sketch2.addConstraint(Sketcher.Constraint("DistanceX", 6, 1, 6, 2, 73.0))
sketch2.addConstraint(Sketcher.Constraint("DistanceY", 5, 1, 5, 2, 2.5))
sketch2.addConstraint(Sketcher.Constraint("DistanceY", 1, 3, -1, 1, 5.0))
sketch2.addConstraint(Sketcher.Constraint("DistanceY", 1, 2, 0, 2, 5.0))
pad2 = body.newObject("PartDesign::Pad", "Pad001")
pad2.Profile = sketch2
pad2.Length = 144
pad2.Reversed = True

# Sketch on XZ plane
sketch3 = body.newObject("Sketcher::SketchObject", "Sketch002")
sketch3.AttachmentSupport = (doc.getObject("XZ_Plane"), [""])
sketch3.MapMode = "FlatFace"
sketch3.AttachmentOffset = App.Placement(V(0, 0, 3), App.Rotation())
add_polygon(sketch3, [(-56.5, -7.5), (-48.5, -7.5), (-48.5, -3.5), (-56.5, -3.5)])  # lines 0-3
add_polygon(sketch3, [(-24.5, -7.5), (-16.5, -7.5), (-16.5, -3.5), (-24.5, -3.5)])  # lines 4-7
sketch3.addConstraint(Sketcher.Constraint("Horizontal", 0))
sketch3.addConstraint(Sketcher.Constraint("Vertical", 1))
sketch3.addConstraint(Sketcher.Constraint("Horizontal", 2))
sketch3.addConstraint(Sketcher.Constraint("Vertical", 3))
sketch3.addConstraint(Sketcher.Constraint("Horizontal", 4))
sketch3.addConstraint(Sketcher.Constraint("Vertical", 5))
sketch3.addConstraint(Sketcher.Constraint("Horizontal", 6))
sketch3.addConstraint(Sketcher.Constraint("Vertical", 7))
sketch3.addConstraint(Sketcher.Constraint("Horizontal", 3, 2, 4, 2))
sketch3.addConstraint(Sketcher.Constraint("Horizontal", 2, 2, 5, 2))
sketch3.addConstraint(Sketcher.Constraint("Equal", 2, 4))
sketch3.addConstraint(Sketcher.Constraint("DistanceX", 0, 1, 0, 2, 8.0))
sketch3.addConstraint(Sketcher.Constraint("DistanceY", 1, 1, 1, 2, 4.0))
sketch3.addConstraint(Sketcher.Constraint("DistanceX", 0, 2, 4, 2, 32.0))
sketch3.addConstraint(Sketcher.Constraint("DistanceX", 0, 2, -1, 1, 48.5))
sketch3.addConstraint(Sketcher.Constraint("DistanceY", 0, 2, -1, 1, 7.5))
pad3 = body.newObject("PartDesign::Pad", "Pad002")
pad3.Profile = sketch3
pad3.Length = 12

# Sketch on XY plane
sketch4 = body.newObject("Sketcher::SketchObject", "Sketch003")
sketch4.AttachmentSupport = (doc.getObject("XY_Plane"), [""])
sketch4.MapMode = "FlatFace"
sketch4.AttachmentOffset = App.Placement(V(0, 0, -7.5), App.Rotation())
sketch4.addGeometry(Part.Circle(V(-23.5, -8.5, 0), V(0, 0, 1), 0.8), False)
sketch4.addGeometry(Part.Circle(V(-49.5, -8.5, 0), V(0, 0, 1), 0.8), False)
sketch4.addConstraint(Sketcher.Constraint("Equal", 0, 1))
sketch4.addConstraint(Sketcher.Constraint("Horizontal", 0, 3, 1, 3))
sketch4.addConstraint(Sketcher.Constraint("Diameter", 0, 1.5))
sketch4.addConstraint(Sketcher.Constraint("DistanceX", 1, 3, 0, 3, 26.0))
sketch4.addConstraint(Sketcher.Constraint("DistanceX", 0, 3, -1, 1, 23.5))
sketch4.addConstraint(Sketcher.Constraint("DistanceY", 0, 3, -1, 1, 8.5))
pocket1 = body.newObject("PartDesign::Pocket", "Pocket")
pocket1.Profile = sketch4
pocket1.Type = "ThroughAll"
pocket1.Reversed = True

doc.recompute()
